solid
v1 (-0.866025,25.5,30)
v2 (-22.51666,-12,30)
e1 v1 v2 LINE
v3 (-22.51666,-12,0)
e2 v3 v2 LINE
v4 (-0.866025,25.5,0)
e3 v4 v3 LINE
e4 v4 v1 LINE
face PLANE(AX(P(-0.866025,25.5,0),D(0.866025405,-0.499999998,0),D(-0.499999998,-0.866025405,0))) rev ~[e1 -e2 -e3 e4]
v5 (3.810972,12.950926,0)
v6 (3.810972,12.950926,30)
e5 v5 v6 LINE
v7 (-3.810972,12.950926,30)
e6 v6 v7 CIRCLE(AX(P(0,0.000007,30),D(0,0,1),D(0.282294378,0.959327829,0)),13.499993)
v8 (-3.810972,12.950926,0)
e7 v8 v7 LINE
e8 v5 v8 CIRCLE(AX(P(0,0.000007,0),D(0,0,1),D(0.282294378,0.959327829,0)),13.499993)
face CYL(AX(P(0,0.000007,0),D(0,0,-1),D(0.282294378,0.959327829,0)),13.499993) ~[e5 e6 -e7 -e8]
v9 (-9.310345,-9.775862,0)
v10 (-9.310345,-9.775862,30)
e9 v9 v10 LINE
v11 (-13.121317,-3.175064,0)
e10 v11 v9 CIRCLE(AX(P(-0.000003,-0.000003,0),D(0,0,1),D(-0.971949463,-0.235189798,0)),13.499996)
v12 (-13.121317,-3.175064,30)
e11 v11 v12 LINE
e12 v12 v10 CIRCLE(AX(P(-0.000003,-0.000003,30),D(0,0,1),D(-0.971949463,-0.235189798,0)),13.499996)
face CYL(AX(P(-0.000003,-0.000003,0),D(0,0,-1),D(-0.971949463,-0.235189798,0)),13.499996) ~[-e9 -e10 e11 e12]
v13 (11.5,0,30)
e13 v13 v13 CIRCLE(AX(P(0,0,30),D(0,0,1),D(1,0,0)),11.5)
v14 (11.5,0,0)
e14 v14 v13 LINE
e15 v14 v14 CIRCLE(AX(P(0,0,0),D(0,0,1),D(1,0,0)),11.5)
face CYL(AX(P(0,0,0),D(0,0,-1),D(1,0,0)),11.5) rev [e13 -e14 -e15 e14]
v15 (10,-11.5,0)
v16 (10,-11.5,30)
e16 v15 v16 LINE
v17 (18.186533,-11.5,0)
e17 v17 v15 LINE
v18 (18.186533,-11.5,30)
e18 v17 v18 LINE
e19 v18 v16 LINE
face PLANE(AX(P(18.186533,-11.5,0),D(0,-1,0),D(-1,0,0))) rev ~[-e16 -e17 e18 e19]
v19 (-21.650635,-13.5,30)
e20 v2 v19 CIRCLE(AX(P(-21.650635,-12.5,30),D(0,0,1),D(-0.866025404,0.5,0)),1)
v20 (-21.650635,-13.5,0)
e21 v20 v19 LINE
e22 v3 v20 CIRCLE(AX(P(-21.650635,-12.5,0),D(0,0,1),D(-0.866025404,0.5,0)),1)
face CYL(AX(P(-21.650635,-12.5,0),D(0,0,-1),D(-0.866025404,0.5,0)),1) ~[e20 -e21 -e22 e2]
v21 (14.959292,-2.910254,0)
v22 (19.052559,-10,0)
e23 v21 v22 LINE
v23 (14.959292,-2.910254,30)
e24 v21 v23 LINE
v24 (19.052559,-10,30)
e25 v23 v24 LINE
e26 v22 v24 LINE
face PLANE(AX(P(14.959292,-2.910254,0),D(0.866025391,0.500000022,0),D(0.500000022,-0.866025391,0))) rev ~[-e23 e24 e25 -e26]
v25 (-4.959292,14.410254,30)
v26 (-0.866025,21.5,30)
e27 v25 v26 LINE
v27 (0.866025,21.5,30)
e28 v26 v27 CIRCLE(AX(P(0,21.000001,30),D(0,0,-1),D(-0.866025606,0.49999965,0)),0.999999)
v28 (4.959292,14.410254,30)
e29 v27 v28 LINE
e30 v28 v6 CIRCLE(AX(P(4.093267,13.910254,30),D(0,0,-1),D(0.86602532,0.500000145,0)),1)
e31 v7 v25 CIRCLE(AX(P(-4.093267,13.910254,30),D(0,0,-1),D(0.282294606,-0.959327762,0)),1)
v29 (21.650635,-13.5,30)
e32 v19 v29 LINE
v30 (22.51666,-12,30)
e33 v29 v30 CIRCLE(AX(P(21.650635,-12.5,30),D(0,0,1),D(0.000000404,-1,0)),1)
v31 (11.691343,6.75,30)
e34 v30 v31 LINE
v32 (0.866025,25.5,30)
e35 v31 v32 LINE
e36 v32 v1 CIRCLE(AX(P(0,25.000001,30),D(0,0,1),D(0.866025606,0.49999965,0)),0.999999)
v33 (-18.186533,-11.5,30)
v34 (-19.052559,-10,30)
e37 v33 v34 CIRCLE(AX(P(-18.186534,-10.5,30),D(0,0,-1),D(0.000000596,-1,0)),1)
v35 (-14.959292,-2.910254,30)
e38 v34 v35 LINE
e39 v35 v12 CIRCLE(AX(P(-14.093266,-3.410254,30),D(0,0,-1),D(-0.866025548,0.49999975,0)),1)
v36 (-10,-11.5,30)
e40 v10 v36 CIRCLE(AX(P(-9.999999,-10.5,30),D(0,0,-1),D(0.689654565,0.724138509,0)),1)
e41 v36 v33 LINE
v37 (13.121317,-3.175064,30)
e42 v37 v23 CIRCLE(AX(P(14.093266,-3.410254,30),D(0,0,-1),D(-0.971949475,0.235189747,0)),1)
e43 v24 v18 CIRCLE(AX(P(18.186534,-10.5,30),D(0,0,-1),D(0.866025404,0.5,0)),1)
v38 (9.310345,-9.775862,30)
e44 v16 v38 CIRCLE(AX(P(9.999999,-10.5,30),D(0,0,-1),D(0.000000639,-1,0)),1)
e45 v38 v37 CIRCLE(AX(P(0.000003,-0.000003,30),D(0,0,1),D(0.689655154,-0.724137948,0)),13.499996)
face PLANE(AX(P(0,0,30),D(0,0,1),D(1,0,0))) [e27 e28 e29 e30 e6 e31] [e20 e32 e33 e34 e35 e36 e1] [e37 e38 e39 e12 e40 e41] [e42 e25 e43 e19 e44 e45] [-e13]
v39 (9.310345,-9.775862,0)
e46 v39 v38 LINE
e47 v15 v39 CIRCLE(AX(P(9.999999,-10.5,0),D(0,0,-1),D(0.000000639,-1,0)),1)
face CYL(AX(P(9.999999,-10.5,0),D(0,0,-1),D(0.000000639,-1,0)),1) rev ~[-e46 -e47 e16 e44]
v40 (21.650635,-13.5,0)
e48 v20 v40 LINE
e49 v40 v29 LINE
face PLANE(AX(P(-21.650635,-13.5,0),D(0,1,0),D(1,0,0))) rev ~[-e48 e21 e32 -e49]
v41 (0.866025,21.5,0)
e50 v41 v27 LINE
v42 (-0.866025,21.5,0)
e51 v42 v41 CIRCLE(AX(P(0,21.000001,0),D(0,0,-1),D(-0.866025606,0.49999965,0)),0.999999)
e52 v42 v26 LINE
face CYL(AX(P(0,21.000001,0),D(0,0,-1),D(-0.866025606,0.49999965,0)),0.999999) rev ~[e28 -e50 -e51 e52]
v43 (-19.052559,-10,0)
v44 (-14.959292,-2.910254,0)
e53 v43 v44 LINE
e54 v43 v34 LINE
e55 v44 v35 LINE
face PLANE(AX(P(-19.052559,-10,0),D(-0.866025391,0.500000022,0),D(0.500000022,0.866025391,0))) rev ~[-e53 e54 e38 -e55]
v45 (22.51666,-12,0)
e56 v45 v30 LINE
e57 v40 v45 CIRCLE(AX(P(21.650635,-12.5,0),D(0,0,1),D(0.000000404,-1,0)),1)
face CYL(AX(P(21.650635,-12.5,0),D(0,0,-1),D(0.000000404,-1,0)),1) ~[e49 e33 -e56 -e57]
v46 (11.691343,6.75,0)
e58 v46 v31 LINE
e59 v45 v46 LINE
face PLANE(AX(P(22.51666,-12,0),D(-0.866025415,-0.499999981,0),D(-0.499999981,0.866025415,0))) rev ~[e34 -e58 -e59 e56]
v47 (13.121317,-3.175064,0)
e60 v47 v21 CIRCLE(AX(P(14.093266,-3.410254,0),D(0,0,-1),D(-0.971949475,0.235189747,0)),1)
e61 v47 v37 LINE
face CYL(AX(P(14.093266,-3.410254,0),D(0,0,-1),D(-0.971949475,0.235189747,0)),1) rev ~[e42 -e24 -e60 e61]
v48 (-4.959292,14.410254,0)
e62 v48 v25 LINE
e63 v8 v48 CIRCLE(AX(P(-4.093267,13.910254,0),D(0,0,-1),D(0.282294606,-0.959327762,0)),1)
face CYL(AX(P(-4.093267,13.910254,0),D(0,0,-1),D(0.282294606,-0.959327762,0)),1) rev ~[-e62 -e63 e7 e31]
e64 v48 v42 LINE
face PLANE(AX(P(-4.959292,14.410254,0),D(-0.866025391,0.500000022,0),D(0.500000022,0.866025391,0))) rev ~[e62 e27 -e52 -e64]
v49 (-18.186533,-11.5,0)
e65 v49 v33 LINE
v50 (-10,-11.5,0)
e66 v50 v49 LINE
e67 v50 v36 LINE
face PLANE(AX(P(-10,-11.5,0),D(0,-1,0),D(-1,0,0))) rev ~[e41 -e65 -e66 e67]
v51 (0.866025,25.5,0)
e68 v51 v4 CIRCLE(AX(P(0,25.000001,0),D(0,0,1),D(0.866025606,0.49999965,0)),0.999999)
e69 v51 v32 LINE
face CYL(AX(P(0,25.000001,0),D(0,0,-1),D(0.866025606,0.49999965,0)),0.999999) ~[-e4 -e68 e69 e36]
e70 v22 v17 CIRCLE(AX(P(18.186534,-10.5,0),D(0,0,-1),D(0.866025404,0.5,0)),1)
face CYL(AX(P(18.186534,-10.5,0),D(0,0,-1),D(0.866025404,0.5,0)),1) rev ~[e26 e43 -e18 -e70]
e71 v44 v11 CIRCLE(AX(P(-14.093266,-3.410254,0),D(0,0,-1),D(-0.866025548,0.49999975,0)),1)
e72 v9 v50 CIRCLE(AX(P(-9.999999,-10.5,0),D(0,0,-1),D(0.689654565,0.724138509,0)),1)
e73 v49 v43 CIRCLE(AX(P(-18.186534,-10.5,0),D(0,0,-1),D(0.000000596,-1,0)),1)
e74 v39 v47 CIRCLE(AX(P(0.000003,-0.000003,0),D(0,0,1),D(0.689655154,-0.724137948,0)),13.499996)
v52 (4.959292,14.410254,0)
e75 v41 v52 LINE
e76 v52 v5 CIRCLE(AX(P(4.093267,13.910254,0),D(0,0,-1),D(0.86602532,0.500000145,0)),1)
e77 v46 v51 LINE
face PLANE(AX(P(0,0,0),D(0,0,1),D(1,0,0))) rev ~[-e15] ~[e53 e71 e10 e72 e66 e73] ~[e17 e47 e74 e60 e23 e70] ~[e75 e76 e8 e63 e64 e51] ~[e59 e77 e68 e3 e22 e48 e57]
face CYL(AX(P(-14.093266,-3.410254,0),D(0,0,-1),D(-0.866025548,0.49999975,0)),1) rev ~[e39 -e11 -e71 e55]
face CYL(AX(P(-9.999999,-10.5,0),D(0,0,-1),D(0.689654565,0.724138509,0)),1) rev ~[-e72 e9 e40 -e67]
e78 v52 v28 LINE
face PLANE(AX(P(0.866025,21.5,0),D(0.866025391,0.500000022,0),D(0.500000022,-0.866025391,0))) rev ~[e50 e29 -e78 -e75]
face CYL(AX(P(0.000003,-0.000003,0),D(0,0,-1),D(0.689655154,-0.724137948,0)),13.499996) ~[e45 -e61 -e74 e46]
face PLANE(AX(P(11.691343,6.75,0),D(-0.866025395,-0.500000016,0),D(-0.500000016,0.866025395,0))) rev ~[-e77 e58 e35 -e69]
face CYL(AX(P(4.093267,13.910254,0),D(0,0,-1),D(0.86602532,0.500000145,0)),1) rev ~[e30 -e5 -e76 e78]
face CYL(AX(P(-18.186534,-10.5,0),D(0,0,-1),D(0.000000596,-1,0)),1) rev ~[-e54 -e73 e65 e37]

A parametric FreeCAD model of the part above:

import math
import FreeCAD as App
import Part
import Sketcher
Q = App.Units.Quantity

doc = App.newDocument("Part")
body = doc.addObject("PartDesign::Body", "Body")

# Sketch on XY plane
sketch1 = body.newObject("Sketcher::SketchObject", "Sketch")
sketch1.AttachmentSupport = (doc.getObject("XY_Plane"), [""])
sketch1.MapMode = "FlatFace"
sketch1.addGeometry(Part.LineSegment(App.Vector(11.7, 6.8, 0), App.Vector(0.9, 25.5, 0)), False)
sketch1.addGeometry(Part.ArcOfCircle(Part.Circle(App.Vector(0, 25, 0), App.Vector(0, 0, 1), 1), math.radians(30), math.radians(150)), False)
sketch1.addGeometry(Part.LineSegment(App.Vector(-0.9, 25.5, 0), App.Vector(-22.5, -12, 0)), False)
sketch1.addGeometry(Part.ArcOfCircle(Part.Circle(App.Vector(-21.7, -12.5, 0), App.Vector(0, 0, 1), 1), math.radians(150), math.radians(270)), False)
sketch1.addGeometry(Part.LineSegment(App.Vector(-21.7, -13.5, 0), App.Vector(21.7, -13.5, 0)), False)
sketch1.addGeometry(Part.ArcOfCircle(Part.Circle(App.Vector(21.7, -12.5, 0), App.Vector(0, 0, 1), 1), math.radians(-90), math.radians(30)), False)
sketch1.addGeometry(Part.LineSegment(App.Vector(22.5, -12, 0), App.Vector(11.7, 6.8, 0)), False)
sketch1.addGeometry(Part.LineSegment(App.Vector(-10, -11.5, 0), App.Vector(-18.2, -11.5, 0)), False)
sketch1.addGeometry(Part.ArcOfCircle(Part.Circle(App.Vector(-18.2, -10.5, 0), App.Vector(0, 0, 1), 1), math.radians(150), math.radians(270)), False)
sketch1.addGeometry(Part.LineSegment(App.Vector(-19.1, -10, 0), App.Vector(-15, -2.9, 0)), False)
sketch1.addGeometry(Part.ArcOfCircle(Part.Circle(App.Vector(-14.1, -3.4, 0), App.Vector(0, 0, 1), 1), math.radians(14), math.radians(150)), False)
sketch1.addGeometry(Part.ArcOfCircle(Part.Circle(App.Vector(0, 0, 0), App.Vector(0, 0, 1), 13.5), math.radians(-166), math.radians(-134)), False)
sketch1.addGeometry(Part.ArcOfCircle(Part.Circle(App.Vector(-10, -10.5, 0), App.Vector(0, 0, 1), 1), math.radians(-90), math.radians(46)), False)
sketch1.addGeometry(Part.LineSegment(App.Vector(15, -2.9, 0), App.Vector(19.1, -10, 0)), False)
sketch1.addGeometry(Part.ArcOfCircle(Part.Circle(App.Vector(18.2, -10.5, 0), App.Vector(0, 0, 1), 1), math.radians(-90), math.radians(30)), False)
sketch1.addGeometry(Part.LineSegment(App.Vector(18.2, -11.5, 0), App.Vector(10, -11.5, 0)), False)
sketch1.addGeometry(Part.ArcOfCircle(Part.Circle(App.Vector(10, -10.5, 0), App.Vector(0, 0, 1), 1), math.radians(134), math.radians(270)), False)
sketch1.addGeometry(Part.ArcOfCircle(Part.Circle(App.Vector(0, 0, 0), App.Vector(0, 0, 1), 13.5), math.radians(-46), math.radians(-14)), False)
sketch1.addGeometry(Part.ArcOfCircle(Part.Circle(App.Vector(14.1, -3.4, 0), App.Vector(0, 0, 1), 1), math.radians(30), math.radians(166)), False)
sketch1.addGeometry(Part.Circle(App.Vector(0, 0, 0), App.Vector(0, 0, 1), 11.5), False)
sketch1.addGeometry(Part.LineSegment(App.Vector(-5, 14.4, 0), App.Vector(-0.9, 21.5, 0)), False)
sketch1.addGeometry(Part.ArcOfCircle(Part.Circle(App.Vector(0, 21, 0), App.Vector(0, 0, 1), 1), math.radians(30), math.radians(150)), False)
sketch1.addGeometry(Part.LineSegment(App.Vector(0.9, 21.5, 0), App.Vector(5, 14.4, 0)), False)
sketch1.addGeometry(Part.ArcOfCircle(Part.Circle(App.Vector(4.1, 13.9, 0), App.Vector(0, 0, 1), 1), math.radians(-106), math.radians(30)), False)
sketch1.addGeometry(Part.ArcOfCircle(Part.Circle(App.Vector(0, 0, 0), App.Vector(0, 0, 1), 13.5), math.radians(74), math.radians(106)), False)
sketch1.addGeometry(Part.ArcOfCircle(Part.Circle(App.Vector(-4.1, 13.9, 0), App.Vector(0, 0, 1), 1), math.radians(150), math.radians(286)), False)
sketch1.addConstraint(Sketcher.Constraint("Tangent", 0, 2, 1, 1))
sketch1.addConstraint(Sketcher.Constraint("Tangent", 1, 2, 2, 1))
sketch1.addConstraint(Sketcher.Constraint("Tangent", 2, 2, 3, 1))
sketch1.addConstraint(Sketcher.Constraint("Tangent", 3, 2, 4, 1))
sketch1.addConstraint(Sketcher.Constraint("Tangent", 4, 2, 5, 1))
sketch1.addConstraint(Sketcher.Constraint("Tangent", 5, 2, 6, 1))
sketch1.addConstraint(Sketcher.Constraint("Coincident", 6, 2, 0, 1))
sketch1.addConstraint(Sketcher.Constraint("Tangent", 7, 2, 8, 2))
sketch1.addConstraint(Sketcher.Constraint("Tangent", 8, 1, 9, 1))
sketch1.addConstraint(Sketcher.Constraint("Tangent", 9, 2, 10, 2))
sketch1.addConstraint(Sketcher.Constraint("Tangent", 10, 1, 11, 1))
sketch1.addConstraint(Sketcher.Constraint("Tangent", 11, 2, 12, 2))
sketch1.addConstraint(Sketcher.Constraint("Tangent", 12, 1, 7, 1))
sketch1.addConstraint(Sketcher.Constraint("Tangent", 13, 2, 14, 2))
sketch1.addConstraint(Sketcher.Constraint("Tangent", 14, 1, 15, 1))
sketch1.addConstraint(Sketcher.Constraint("Tangent", 15, 2, 16, 2))
sketch1.addConstraint(Sketcher.Constraint("Tangent", 16, 1, 17, 1))
sketch1.addConstraint(Sketcher.Constraint("Tangent", 17, 2, 18, 2))
sketch1.addConstraint(Sketcher.Constraint("Tangent", 18, 1, 13, 1))
sketch1.addConstraint(Sketcher.Constraint("Tangent", 20, 2, 21, 2))
sketch1.addConstraint(Sketcher.Constraint("Tangent", 21, 1, 22, 1))
sketch1.addConstraint(Sketcher.Constraint("Tangent", 22, 2, 23, 2))
sketch1.addConstraint(Sketcher.Constraint("Tangent", 23, 1, 24, 1))
sketch1.addConstraint(Sketcher.Constraint("Tangent", 24, 2, 25, 2))
sketch1.addConstraint(Sketcher.Constraint("Tangent", 25, 1, 20, 1))
sketch1.addConstraint(Sketcher.Constraint("Horizontal", 4))
sketch1.addConstraint(Sketcher.Constraint("Horizontal", 7))
sketch1.addConstraint(Sketcher.Constraint("Horizontal", 15))
sketch1.addConstraint(Sketcher.Constraint("Coincident", 11, 3, -1, 1))
sketch1.addConstraint(Sketcher.Constraint("Coincident", 17, 3, -1, 1))
sketch1.addConstraint(Sketcher.Constraint("Coincident", 19, 3, -1, 1))
sketch1.addConstraint(Sketcher.Constraint("Coincident", 24, 3, -1, 1))
sketch1.addConstraint(Sketcher.Constraint("Equal", 1, 3))
sketch1.addConstraint(Sketcher.Constraint("Equal", 3, 5))
sketch1.addConstraint(Sketcher.Constraint("Equal", 5, 8))
sketch1.addConstraint(Sketcher.Constraint("Equal", 8, 10))
sketch1.addConstraint(Sketcher.Constraint("Equal", 10, 12))
sketch1.addConstraint(Sketcher.Constraint("Equal", 12, 14))
sketch1.addConstraint(Sketcher.Constraint("Equal", 14, 16))
sketch1.addConstraint(Sketcher.Constraint("Equal", 11, 17))
sketch1.addConstraint(Sketcher.Constraint("Equal", 16, 18))
sketch1.addConstraint(Sketcher.Constraint("Equal", 18, 21))
sketch1.addConstraint(Sketcher.Constraint("Equal", 21, 23))
sketch1.addConstraint(Sketcher.Constraint("Equal", 23, 25))
sketch1.addConstraint(Sketcher.Constraint("Symmetric", 8, 3, 14, 3, -2))
sketch1.addConstraint(Sketcher.Constraint("Symmetric", 0, 2, 1, 2, -2))
sketch1.addConstraint(Sketcher.Constraint("Symmetric", 20, 2, 21, 1, -2))
sketch1.addConstraint(Sketcher.Constraint("Parallel", 0, 6))
sketch1.addConstraint(Sketcher.Constraint("Parallel", 2, 9))
sketch1.addConstraint(Sketcher.Constraint("Parallel", 6, 13))
sketch1.addConstraint(Sketcher.Constraint("Parallel", 9, 20))
sketch1.addConstraint(Sketcher.Constraint("Equal", 0, 6))
sketch1.addConstraint(Sketcher.Constraint("Equal", 13, 20))
sketch1.addConstraint(Sketcher.Constraint("Diameter", 19, 23.0))
sketch1.addConstraint(Sketcher.Constraint("Radius", 1, 0.999999))
sketch1.addConstraint(Sketcher.Constraint("Angle", 0, Q("120.000001 deg")))
sketch1.addConstraint(Sketcher.Constraint("DistanceY", -1, 1, 1, 3, 25.000001))
sketch1.addConstraint(Sketcher.Constraint("DistanceX", 12, 3, -1, 1, 9.999999))
sketch1.addConstraint(Sketcher.Constraint("DistanceY", -1, 1, 21, 3, 21.000001))
sketch1.addConstraint(Sketcher.Constraint("DistanceY", 2, 2, -1, 1, 12.0))
sketch1.addConstraint(Sketcher.Constraint("DistanceY", 8, 1, -1, 1, 10.0))
sketch1.addConstraint(Sketcher.Constraint("Radius", 24, 13.499993))
pad1 = body.newObject("PartDesign::Pad", "Pad")
pad1.Profile = sketch1
pad1.Length = 30

doc.recompute()
